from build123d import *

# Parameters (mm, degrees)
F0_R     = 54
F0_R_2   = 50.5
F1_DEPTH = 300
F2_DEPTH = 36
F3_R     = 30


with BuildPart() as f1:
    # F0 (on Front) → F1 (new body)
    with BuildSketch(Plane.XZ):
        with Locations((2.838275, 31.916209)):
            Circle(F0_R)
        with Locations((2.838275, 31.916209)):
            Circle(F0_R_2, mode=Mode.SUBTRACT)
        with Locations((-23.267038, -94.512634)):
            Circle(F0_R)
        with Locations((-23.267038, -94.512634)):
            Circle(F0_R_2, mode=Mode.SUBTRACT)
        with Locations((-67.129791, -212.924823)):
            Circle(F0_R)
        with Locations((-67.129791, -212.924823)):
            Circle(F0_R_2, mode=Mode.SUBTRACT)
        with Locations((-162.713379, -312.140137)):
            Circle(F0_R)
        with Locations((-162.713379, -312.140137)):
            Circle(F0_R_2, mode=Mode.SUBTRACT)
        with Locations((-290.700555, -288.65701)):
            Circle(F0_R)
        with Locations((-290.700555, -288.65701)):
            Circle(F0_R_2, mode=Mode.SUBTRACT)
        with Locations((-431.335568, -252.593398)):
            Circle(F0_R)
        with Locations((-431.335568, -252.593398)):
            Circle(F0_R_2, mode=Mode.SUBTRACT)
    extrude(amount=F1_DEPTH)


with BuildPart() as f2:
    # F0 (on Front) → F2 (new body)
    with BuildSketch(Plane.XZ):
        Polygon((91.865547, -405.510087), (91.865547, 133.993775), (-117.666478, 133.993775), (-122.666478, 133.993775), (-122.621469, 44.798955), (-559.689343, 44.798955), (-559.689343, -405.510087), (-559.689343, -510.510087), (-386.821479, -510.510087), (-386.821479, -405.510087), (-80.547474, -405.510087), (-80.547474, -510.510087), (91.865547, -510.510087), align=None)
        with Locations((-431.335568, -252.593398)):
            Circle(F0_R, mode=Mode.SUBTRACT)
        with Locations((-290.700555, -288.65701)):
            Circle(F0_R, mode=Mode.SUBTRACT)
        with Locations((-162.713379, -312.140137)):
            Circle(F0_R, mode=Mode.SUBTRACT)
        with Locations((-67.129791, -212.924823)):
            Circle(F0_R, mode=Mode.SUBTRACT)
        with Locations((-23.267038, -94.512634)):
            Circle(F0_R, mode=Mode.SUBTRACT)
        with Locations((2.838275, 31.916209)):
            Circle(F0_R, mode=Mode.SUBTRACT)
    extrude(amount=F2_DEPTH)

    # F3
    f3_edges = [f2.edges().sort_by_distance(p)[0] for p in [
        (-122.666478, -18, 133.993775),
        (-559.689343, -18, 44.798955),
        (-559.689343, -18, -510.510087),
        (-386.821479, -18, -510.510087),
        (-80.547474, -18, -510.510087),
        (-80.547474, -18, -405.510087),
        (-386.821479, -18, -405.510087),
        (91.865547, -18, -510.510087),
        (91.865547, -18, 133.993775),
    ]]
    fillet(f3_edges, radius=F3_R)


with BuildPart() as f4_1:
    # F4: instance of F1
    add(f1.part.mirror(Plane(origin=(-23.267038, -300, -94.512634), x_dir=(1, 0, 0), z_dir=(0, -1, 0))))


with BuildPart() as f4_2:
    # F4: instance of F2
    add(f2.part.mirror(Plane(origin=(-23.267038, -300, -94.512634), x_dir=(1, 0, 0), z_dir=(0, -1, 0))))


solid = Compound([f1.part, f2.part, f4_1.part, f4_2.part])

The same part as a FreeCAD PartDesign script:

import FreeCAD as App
import Part
import Sketcher


def edges_at(feature, points):
    """Names of the edges that pass closest to the given points."""
    edges = feature.Shape.Edges
    near = lambda p: min(range(len(edges)), key=lambda i: edges[i].distToShape(Part.Vertex(*p))[0])
    return sorted({f"Edge{near(p) + 1}" for p in points})


def add_polygon(sketch, points):
    """Adds a closed chain of lines whose ends are joined by coincident constraints."""
    first, n = sketch.GeometryCount, len(points)
    for a, b in zip(points, points[1:] + points[:1]):
        sketch.addGeometry(Part.LineSegment(App.Vector(*a, 0), App.Vector(*b, 0)), False)
    for i in range(n):
        sketch.addConstraint(Sketcher.Constraint("Coincident", first + i, 2, first + (i + 1) % n, 1))

doc = App.newDocument("Part")
body = doc.addObject("PartDesign::Body", "Body")
body.AllowCompound = True

# Sketch on XZ plane
sketch1 = body.newObject("Sketcher::SketchObject", "Sketch")
sketch1.AttachmentSupport = (doc.getObject("XZ_Plane"), [""])
sketch1.MapMode = "FlatFace"
sketch1.addGeometry([
    Part.Circle(App.Vector(2.838275, 31.916209, 0), App.Vector(0, 0, 1), 54),  # 0
    Part.Circle(App.Vector(2.838275, 31.916209, 0), App.Vector(0, 0, 1), 50.5),  # 1
    Part.Circle(App.Vector(-23.267038, -94.512634, 0), App.Vector(0, 0, 1), 54),  # 2
    Part.Circle(App.Vector(-23.267038, -94.512634, 0), App.Vector(0, 0, 1), 50.5),  # 3
    Part.Circle(App.Vector(-67.129791, -212.924823, 0), App.Vector(0, 0, 1), 54),  # 4
    Part.Circle(App.Vector(-67.129791, -212.924823, 0), App.Vector(0, 0, 1), 50.5),  # 5
    Part.Circle(App.Vector(-162.713379, -312.140137, 0), App.Vector(0, 0, 1), 54),  # 6
    Part.Circle(App.Vector(-162.713379, -312.140137, 0), App.Vector(0, 0, 1), 50.5),  # 7
    Part.Circle(App.Vector(-290.700555, -288.65701, 0), App.Vector(0, 0, 1), 54),  # 8
    Part.Circle(App.Vector(-290.700555, -288.65701, 0), App.Vector(0, 0, 1), 50.5),  # 9
    Part.Circle(App.Vector(-431.335568, -252.593398, 0), App.Vector(0, 0, 1), 54),  # 10
    Part.Circle(App.Vector(-431.335568, -252.593398, 0), App.Vector(0, 0, 1), 50.5),  # 11
], False)
sketch1.addConstraint([
    Sketcher.Constraint("Coincident", 1, 3, 0, 3),
    Sketcher.Constraint("Coincident", 3, 3, 2, 3),
    Sketcher.Constraint("Coincident", 5, 3, 4, 3),
    Sketcher.Constraint("Coincident", 7, 3, 6, 3),
    Sketcher.Constraint("Coincident", 9, 3, 8, 3),
    Sketcher.Constraint("Coincident", 11, 3, 10, 3),
    Sketcher.Constraint("Equal", 0, 2),
    Sketcher.Constraint("Equal", 1, 3),
    Sketcher.Constraint("Equal", 2, 4),
    Sketcher.Constraint("Equal", 3, 5),
    Sketcher.Constraint("Equal", 4, 6),
    Sketcher.Constraint("Equal", 5, 7),
    Sketcher.Constraint("Equal", 6, 8),
    Sketcher.Constraint("Equal", 7, 9),
    Sketcher.Constraint("Equal", 8, 10),
    Sketcher.Constraint("Equal", 9, 11),
    Sketcher.Constraint("Diameter", 0, 108.0),
    Sketcher.Constraint("Diameter", 1, 101.0),
    Sketcher.Constraint("DistanceY", 10, 3, -1, 1, 252.593398),
    Sketcher.Constraint("DistanceY", -1, 1, 0, 3, 31.916209),
    Sketcher.Constraint("DistanceX", 4, 3, -1, 1, 67.129791),
    Sketcher.Constraint("DistanceX", 6, 3, -1, 1, 162.713379),
    Sketcher.Constraint("DistanceY", 8, 3, -1, 1, 288.65701),
    Sketcher.Constraint("DistanceX", 10, 3, -1, 1, 431.335568),
    Sketcher.Constraint("DistanceY", 4, 3, 2, 3, 118.412189),
    Sketcher.Constraint("DistanceX", 6, 3, 2, 3, 139.446341),
    Sketcher.Constraint("DistanceY", 6, 3, 10, 3, 59.546739),
    Sketcher.Constraint("DistanceX", -1, 1, 0, 3, 2.838275),
    Sketcher.Constraint("DistanceY", 2, 3, -1, 1, 94.512634),
    Sketcher.Constraint("DistanceX", 8, 3, -1, 1, 290.700555),
])
pad1 = body.newObject("PartDesign::Pad", "Pad")
pad1.Profile = sketch1
pad1.Length = 300
body2 = doc.addObject("PartDesign::Body", "Body001")

# Sketch on XZ plane
sketch2 = body2.newObject("Sketcher::SketchObject", "Sketch001")
sketch2.AttachmentSupport = (doc.getObject("XZ_Plane001"), [""])
sketch2.MapMode = "FlatFace"
add_polygon(sketch2, [(91.865547, 133.993775), (-122.666478, 133.993775), (-122.621469, 44.798955), (-559.689343, 44.798955), (-559.689343, -510.510087), (-386.821479, -510.510087), (-386.821479, -405.510087), (-80.547474, -405.510087), (-80.547474, -510.510087), (91.865547, -510.510087)])  # lines 0-9
sketch2.addGeometry(Part.Circle(App.Vector(-290.700555, -288.65701, 0), App.Vector(0, 0, 1), 54), False)  # 10
sketch2.addGeometry(Part.Circle(App.Vector(-431.335568, -252.593398, 0), App.Vector(0, 0, 1), 54), False)  # 11
sketch2.addGeometry(Part.Circle(App.Vector(-162.713379, -312.140137, 0), App.Vector(0, 0, 1), 54), False)  # 12
sketch2.addGeometry(Part.Circle(App.Vector(-67.129791, -212.924823, 0), App.Vector(0, 0, 1), 54), False)  # 13
sketch2.addGeometry(Part.Circle(App.Vector(-23.267038, -94.512634, 0), App.Vector(0, 0, 1), 54), False)  # 14
sketch2.addGeometry(Part.Circle(App.Vector(2.838275, 31.916209, 0), App.Vector(0, 0, 1), 54), False)  # 15
sketch2.addConstraint([
    Sketcher.Constraint("Horizontal", 0),
    Sketcher.Constraint("Horizontal", 2),
    Sketcher.Constraint("Vertical", 3),
    Sketcher.Constraint("Horizontal", 4),
    Sketcher.Constraint("Vertical", 5),
    Sketcher.Constraint("Horizontal", 6),
    Sketcher.Constraint("Vertical", 7),
    Sketcher.Constraint("Horizontal", 8),
    Sketcher.Constraint("Vertical", 9),
    Sketcher.Constraint("Equal", 10, 11),
    Sketcher.Constraint("Equal", 11, 12),
    Sketcher.Constraint("Equal", 12, 13),
    Sketcher.Constraint("Equal", 13, 14),
    Sketcher.Constraint("Equal", 14, 15),
    Sketcher.Constraint("Horizontal", 4, 2, 7, 2),
    Sketcher.Constraint("Diameter", 10, 108.0),
    Sketcher.Constraint("DistanceY", 5, 1, 5, 2, 105.0),
    Sketcher.Constraint("DistanceX", 8, 1, 8, 2, 172.413021),
    Sketcher.Constraint("DistanceY", 3, 2, 3, 1, 555.309042),
    Sketcher.Constraint("DistanceY", 9, 1, 9, 2, 644.503862),
    Sketcher.Constraint("DistanceY", 11, 3, -1, 1, 252.593398),
    Sketcher.Constraint("DistanceX", 12, 3, 0, 2, 40.046901),
    Sketcher.Constraint("DistanceX", 4, 2, 12, 3, 224.1081),
    Sketcher.Constraint("DistanceX", 0, 2, 0, 1, 214.532025),
    Sketcher.Constraint("DistanceX", 2, 2, 2, 1, 437.067874),
    Sketcher.Constraint("DistanceX", 4, 1, 4, 2, 172.867864),
    Sketcher.Constraint("DistanceY", 10, 3, -1, 1, 288.65701),
    Sketcher.Constraint("DistanceX", 11, 3, -1, 1, 431.335568),
    Sketcher.Constraint("DistanceX", 12, 3, -1, 1, 162.713379),
    Sketcher.Constraint("DistanceX", 13, 3, -1, 1, 67.129791),
    Sketcher.Constraint("DistanceY", -1, 1, 15, 3, 31.916209),
    Sketcher.Constraint("DistanceY", 12, 3, 11, 3, 59.546739),
    Sketcher.Constraint("DistanceY", 13, 3, 14, 3, 118.412189),
    Sketcher.Constraint("DistanceX", 12, 3, 14, 3, 139.446341),
    Sketcher.Constraint("DistanceX", 10, 3, 15, 3, 293.53883),
    Sketcher.Constraint("DistanceY", 14, 3, 0, 2, 228.506409),
    Sketcher.Constraint("DistanceY", 12, 3, 0, 2, 446.133912),
    Sketcher.Constraint("DistanceX", 2, 2, 10, 3, 268.988788),
])
pad2 = body2.newObject("PartDesign::Pad", "Pad001")
pad2.Profile = sketch2
pad2.Length = 36
doc.recompute()

fillet = body2.newObject("PartDesign::Fillet", "Fillet")
fillet.Base = (pad2, edges_at(pad2, [
    (-122.666, -18, 133.994),
    (-559.689, -18, 44.799),
    (-559.689, -18, -510.51),
    (-386.821, -18, -510.51),
    (-80.547, -18, -510.51),
    (-80.547, -18, -405.51),
    (-386.821, -18, -405.51),
    (91.866, -18, -510.51),
    (91.866, -18, 133.994),
]))
fillet.Radius = 30
body3 = doc.addObject("PartDesign::Body", "Body002")
body3.AllowCompound = True
doc.recompute()

mirroring = doc.addObject("Part::Mirroring", "Mirroring")
mirroring.Source = body
mirroring.Base = App.Vector(-23.267038, -300, -94.512634)
mirroring.Normal = App.Vector(0, -1, 0)
body3.BaseFeature = mirroring
doc.recompute()
body4 = doc.addObject("PartDesign::Body", "Body003")
doc.recompute()

mirroring2 = doc.addObject("Part::Mirroring", "Mirroring001")
mirroring2.Source = body2
mirroring2.Base = App.Vector(-23.267038, -300, -94.512634)
mirroring2.Normal = App.Vector(0, -1, 0)
body4.BaseFeature = mirroring2
doc.recompute()
mirroring.Visibility = False
mirroring2.Visibility = False

doc.recompute()
